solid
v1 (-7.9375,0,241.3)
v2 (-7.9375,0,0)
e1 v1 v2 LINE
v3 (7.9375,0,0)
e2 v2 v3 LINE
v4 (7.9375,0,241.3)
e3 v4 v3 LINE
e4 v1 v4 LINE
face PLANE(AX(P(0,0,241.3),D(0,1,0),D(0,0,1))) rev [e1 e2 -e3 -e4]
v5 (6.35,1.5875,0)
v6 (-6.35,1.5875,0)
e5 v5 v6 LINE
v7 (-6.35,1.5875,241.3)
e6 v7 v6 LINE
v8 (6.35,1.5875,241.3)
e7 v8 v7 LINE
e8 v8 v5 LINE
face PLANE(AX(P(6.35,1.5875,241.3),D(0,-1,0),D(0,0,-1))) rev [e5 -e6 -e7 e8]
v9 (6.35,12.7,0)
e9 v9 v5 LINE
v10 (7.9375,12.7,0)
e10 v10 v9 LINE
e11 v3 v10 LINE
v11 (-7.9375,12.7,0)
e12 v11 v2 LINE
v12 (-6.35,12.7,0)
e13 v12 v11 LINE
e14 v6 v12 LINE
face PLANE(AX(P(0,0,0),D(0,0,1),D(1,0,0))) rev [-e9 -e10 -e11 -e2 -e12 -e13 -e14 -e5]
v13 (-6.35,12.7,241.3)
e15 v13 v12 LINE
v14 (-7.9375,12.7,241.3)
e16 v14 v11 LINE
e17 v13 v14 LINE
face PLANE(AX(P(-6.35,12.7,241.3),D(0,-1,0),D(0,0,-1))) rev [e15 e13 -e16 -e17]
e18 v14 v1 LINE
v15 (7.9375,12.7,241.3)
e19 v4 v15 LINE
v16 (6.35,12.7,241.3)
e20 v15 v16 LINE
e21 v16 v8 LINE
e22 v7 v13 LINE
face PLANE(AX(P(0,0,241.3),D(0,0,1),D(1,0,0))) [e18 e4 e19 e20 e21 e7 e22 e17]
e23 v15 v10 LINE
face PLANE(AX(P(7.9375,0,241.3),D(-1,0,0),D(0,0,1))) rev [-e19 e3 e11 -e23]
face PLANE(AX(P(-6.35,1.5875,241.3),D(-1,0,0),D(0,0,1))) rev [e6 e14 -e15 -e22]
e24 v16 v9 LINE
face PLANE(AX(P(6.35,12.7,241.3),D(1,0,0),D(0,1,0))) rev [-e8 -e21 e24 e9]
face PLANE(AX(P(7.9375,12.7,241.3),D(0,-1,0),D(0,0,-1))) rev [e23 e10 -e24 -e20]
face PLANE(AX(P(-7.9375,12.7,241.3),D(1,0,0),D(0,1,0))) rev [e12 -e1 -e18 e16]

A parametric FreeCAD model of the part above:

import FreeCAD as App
import Part
import Sketcher

V = App.Vector
Q = App.Units.Quantity

doc = App.newDocument("Part")
body = doc.addObject("PartDesign::Body", "Body")

# Sketch on XY plane
sketch1 = body.newObject("Sketcher::SketchObject", "Sketch")
sketch1.AttachmentSupport = (doc.getObject("XY_Plane"), [""])
sketch1.MapMode = "FlatFace"
sketch1.addGeometry([
    Part.LineSegment(V(7.9, 0, 0), V(7.9, 12.7, 0)),  # 0
    Part.LineSegment(V(7.9, 12.7, 0), V(6.3, 12.7, 0)),  # 1
    Part.LineSegment(V(6.3, 12.7, 0), V(6.3, 1.6, 0)),  # 2
    Part.LineSegment(V(6.3, 1.6, 0), V(-6.3, 1.6, 0)),  # 3
    Part.LineSegment(V(-6.3, 1.6, 0), V(-6.3, 12.7, 0)),  # 4
    Part.LineSegment(V(-6.3, 12.7, 0), V(-7.9, 12.7, 0)),  # 5
    Part.LineSegment(V(-7.9, 12.7, 0), V(-7.9, 0, 0)),  # 6
    Part.LineSegment(V(-7.9, 0, 0), V(7.9, 0, 0)),  # 7
], False)
sketch1.addConstraint([
    Sketcher.Constraint("Coincident", 0, 2, 1, 1),
    Sketcher.Constraint("Coincident", 1, 2, 2, 1),
    Sketcher.Constraint("Coincident", 2, 2, 3, 1),
    Sketcher.Constraint("Coincident", 3, 2, 4, 1),
    Sketcher.Constraint("Coincident", 4, 2, 5, 1),
    Sketcher.Constraint("Coincident", 5, 2, 6, 1),
    Sketcher.Constraint("Coincident", 6, 2, 7, 1),
    Sketcher.Constraint("Coincident", 7, 2, 0, 1),
    Sketcher.Constraint("Vertical", 0),
    Sketcher.Constraint("Horizontal", 1),
    Sketcher.Constraint("Vertical", 2),
    Sketcher.Constraint("Horizontal", 3),
    Sketcher.Constraint("Vertical", 4),
    Sketcher.Constraint("Horizontal", 5),
    Sketcher.Constraint("Vertical", 6),
    Sketcher.Constraint("Horizontal", 7),
    Sketcher.Constraint("Symmetric", 6, 2, 7, 2, -1, 1),
    Sketcher.Constraint("Symmetric", 1, 2, 4, 2, -2),
    Sketcher.Constraint("Equal", 3, 0),
    Sketcher.Constraint("DistanceX", 3, 2, 3, 1, Q("0.5 in")),
    Sketcher.Constraint("DistanceX", 1, 2, 1, 1, Q("0.0625 in")),
    Sketcher.Constraint("DistanceY", 2, 2, 2, 1, Q("0.4375 in")),
])
pad1 = body.newObject("PartDesign::Pad", "Pad")
pad1.Profile = sketch1
pad1.Length = Q("9.5 in")

doc.recompute()
